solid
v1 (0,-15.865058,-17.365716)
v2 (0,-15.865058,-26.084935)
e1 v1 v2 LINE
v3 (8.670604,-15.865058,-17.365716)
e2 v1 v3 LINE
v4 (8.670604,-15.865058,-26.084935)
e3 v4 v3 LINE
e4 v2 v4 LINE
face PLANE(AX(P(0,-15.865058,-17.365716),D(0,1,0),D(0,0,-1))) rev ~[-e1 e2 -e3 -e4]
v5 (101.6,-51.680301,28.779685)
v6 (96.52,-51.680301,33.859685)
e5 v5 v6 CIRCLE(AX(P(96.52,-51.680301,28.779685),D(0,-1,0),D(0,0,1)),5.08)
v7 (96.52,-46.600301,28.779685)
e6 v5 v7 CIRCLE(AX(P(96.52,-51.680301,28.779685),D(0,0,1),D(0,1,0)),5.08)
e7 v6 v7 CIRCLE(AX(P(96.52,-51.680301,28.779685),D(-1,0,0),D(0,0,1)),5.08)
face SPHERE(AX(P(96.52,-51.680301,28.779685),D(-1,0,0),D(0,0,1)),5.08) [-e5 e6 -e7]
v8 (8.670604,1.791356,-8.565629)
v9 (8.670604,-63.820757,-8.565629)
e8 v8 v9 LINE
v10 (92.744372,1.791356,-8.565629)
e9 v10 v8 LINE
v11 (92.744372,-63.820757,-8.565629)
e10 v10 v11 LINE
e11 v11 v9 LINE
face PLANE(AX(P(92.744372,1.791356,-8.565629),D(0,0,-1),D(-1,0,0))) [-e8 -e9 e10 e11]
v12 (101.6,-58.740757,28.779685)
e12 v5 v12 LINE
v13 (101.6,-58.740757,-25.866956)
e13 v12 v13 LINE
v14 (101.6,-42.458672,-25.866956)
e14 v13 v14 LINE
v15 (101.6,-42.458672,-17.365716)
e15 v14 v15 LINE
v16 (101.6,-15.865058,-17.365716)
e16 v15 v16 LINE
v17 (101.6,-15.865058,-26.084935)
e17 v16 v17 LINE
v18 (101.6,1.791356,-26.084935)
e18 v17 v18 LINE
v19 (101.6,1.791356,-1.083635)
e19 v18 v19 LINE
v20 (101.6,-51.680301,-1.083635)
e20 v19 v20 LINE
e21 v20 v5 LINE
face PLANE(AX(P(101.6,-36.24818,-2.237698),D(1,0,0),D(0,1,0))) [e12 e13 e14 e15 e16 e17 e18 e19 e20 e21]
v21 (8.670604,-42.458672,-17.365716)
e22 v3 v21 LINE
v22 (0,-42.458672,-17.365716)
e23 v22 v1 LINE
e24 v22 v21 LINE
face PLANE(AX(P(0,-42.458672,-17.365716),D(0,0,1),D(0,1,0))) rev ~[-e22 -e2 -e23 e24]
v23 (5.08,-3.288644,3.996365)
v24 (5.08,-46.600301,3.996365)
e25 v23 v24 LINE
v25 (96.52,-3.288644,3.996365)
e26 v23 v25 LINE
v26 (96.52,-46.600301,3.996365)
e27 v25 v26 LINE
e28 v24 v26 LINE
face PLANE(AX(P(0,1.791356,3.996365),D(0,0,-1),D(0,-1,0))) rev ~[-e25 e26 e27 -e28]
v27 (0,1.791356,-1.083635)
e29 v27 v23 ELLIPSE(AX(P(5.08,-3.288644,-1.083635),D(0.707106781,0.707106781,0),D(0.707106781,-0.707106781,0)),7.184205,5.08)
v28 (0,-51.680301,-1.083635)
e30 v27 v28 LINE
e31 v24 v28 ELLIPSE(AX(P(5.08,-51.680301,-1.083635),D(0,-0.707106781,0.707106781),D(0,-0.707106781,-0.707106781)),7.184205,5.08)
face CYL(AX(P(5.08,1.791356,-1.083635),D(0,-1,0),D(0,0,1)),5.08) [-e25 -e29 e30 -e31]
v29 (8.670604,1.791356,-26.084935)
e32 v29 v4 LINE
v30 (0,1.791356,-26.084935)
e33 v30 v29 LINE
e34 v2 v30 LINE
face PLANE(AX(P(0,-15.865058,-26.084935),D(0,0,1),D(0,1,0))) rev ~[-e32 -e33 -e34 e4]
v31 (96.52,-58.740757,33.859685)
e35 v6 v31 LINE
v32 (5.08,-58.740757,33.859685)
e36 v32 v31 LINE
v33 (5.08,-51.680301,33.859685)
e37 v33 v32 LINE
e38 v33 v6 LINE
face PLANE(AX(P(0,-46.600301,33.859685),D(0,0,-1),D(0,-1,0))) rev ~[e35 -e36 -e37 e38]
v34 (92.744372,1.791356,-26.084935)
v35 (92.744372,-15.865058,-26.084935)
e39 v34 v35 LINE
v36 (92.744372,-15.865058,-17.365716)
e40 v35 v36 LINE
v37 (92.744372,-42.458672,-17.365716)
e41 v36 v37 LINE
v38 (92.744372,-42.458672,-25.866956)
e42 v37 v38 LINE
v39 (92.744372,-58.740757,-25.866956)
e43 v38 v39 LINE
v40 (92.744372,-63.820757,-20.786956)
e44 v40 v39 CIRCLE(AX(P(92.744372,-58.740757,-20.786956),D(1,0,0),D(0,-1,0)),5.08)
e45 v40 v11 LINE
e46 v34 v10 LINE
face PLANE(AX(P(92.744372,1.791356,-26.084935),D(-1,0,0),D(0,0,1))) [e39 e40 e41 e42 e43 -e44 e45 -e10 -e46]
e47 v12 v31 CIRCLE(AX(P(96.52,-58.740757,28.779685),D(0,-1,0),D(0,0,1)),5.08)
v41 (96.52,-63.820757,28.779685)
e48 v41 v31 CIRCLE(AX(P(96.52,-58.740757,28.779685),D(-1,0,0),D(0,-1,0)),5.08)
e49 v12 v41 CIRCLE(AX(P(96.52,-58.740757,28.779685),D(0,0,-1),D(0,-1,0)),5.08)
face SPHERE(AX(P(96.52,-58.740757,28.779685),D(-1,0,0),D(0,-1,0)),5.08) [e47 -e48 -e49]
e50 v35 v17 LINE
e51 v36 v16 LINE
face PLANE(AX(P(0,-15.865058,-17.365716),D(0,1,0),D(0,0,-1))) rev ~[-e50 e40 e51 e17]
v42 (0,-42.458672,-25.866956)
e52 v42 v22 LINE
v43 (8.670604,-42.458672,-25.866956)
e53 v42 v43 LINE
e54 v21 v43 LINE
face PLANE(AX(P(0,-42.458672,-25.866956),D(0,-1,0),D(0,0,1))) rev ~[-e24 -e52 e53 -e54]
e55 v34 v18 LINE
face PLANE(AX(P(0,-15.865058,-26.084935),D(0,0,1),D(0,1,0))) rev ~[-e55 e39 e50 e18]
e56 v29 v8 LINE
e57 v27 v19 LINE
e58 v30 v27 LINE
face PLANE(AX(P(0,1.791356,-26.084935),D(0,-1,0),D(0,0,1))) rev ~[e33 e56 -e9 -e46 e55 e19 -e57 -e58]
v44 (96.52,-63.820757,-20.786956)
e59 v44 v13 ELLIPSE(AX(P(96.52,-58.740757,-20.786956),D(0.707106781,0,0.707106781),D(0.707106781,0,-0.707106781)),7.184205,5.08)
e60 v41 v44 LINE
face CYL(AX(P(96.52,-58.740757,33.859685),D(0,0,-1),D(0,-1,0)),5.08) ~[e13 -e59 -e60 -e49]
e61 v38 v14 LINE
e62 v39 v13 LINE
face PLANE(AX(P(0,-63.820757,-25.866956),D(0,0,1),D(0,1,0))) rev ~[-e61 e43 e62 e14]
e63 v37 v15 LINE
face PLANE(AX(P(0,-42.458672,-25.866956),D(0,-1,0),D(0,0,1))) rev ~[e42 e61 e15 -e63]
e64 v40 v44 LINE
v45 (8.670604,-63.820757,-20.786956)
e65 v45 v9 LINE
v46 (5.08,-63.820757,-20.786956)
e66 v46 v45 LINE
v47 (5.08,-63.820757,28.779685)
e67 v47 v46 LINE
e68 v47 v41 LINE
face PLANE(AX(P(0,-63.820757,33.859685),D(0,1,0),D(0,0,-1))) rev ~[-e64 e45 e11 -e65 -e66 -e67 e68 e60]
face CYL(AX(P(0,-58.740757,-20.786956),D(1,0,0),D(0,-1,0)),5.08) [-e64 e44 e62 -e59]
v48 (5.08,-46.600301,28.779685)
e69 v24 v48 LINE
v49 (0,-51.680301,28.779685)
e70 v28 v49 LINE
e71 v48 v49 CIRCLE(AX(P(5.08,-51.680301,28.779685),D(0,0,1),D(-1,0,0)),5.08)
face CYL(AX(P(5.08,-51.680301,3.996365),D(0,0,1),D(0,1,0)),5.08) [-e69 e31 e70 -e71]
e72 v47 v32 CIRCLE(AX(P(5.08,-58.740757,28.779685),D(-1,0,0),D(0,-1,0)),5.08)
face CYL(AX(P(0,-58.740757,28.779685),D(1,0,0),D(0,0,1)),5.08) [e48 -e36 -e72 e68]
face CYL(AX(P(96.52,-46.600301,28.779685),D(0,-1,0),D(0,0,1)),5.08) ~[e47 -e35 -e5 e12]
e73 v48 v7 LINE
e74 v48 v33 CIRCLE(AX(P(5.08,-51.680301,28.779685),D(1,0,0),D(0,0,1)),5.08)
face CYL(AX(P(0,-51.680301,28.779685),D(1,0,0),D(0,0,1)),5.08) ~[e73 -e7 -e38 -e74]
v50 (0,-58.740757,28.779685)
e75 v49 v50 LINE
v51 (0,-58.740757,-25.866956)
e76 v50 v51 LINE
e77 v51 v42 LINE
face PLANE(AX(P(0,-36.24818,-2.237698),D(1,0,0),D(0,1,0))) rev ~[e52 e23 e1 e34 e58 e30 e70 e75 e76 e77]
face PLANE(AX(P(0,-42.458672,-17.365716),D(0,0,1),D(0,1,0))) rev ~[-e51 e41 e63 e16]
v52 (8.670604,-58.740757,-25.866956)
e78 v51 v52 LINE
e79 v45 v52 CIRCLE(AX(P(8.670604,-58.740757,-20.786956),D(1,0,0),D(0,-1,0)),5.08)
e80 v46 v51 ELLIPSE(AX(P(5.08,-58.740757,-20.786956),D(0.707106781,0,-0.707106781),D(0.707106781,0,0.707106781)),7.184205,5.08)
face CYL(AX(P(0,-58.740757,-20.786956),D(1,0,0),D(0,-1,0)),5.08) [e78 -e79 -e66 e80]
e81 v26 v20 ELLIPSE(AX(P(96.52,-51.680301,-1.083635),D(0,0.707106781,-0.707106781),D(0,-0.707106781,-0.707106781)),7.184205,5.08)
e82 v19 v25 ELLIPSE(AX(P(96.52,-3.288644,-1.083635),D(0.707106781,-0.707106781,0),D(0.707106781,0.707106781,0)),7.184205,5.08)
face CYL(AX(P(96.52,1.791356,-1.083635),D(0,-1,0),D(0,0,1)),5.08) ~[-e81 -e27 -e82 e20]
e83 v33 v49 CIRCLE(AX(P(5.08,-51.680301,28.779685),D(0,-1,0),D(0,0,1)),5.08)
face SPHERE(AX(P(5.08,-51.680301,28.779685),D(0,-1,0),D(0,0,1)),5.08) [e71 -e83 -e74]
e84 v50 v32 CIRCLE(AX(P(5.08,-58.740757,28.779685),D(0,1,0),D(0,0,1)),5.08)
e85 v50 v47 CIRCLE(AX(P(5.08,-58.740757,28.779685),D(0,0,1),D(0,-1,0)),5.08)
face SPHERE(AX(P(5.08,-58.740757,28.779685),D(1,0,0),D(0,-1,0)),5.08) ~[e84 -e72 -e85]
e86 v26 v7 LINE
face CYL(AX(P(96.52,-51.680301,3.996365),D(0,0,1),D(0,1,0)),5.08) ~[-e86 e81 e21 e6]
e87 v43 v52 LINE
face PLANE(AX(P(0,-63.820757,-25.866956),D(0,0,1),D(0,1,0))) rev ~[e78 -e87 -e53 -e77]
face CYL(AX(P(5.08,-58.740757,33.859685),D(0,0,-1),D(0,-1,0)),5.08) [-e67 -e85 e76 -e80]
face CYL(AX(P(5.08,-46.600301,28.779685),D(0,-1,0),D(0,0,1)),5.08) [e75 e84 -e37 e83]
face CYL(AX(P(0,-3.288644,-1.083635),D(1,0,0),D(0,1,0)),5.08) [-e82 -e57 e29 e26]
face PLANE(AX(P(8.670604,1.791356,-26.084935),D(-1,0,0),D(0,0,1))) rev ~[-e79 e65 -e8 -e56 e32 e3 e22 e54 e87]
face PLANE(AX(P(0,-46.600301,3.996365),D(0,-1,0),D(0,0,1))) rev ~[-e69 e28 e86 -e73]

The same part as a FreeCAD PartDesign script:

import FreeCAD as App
import Part
import Sketcher


def edges_at(feature, points):
    """Names of the edges that pass closest to the given points."""
    edges = feature.Shape.Edges
    near = lambda p: min(range(len(edges)), key=lambda i: edges[i].distToShape(Part.Vertex(*p))[0])
    return sorted({f"Edge{near(p) + 1}" for p in points})

doc = App.newDocument("Part")
params = doc.addObject("Spreadsheet::Sheet", "Params")
for row, (alias, value) in enumerate([
    ("pad1_length", "4 in"),
    ("fillet_radius", "0.2 in"),
], start=1):
    params.set(f"A{row}", alias)
    params.set(f"B{row}", "=" + value)
    params.setAlias(f"B{row}", alias)

body = doc.addObject("PartDesign::Body", "Body")

# Sketch on YZ plane
sketch1 = body.newObject("Sketcher::SketchObject", "Sketch")
sketch1.AttachmentSupport = (doc.getObject("YZ_Plane"), [""])
sketch1.MapMode = "FlatFace"
sketch1.addGeometry(Part.LineSegment(App.Vector(-47, 34, 0), App.Vector(-64, 34, 0)), False)
sketch1.addGeometry(Part.LineSegment(App.Vector(-64, 34, 0), App.Vector(-64, -26, 0)), False)
sketch1.addGeometry(Part.LineSegment(App.Vector(-64, -26, 0), App.Vector(-42, -26, 0)), False)
sketch1.addGeometry(Part.LineSegment(App.Vector(-42, -26, 0), App.Vector(-42, -17, 0)), False)
sketch1.addGeometry(Part.LineSegment(App.Vector(-42, -17, 0), App.Vector(-16, -17, 0)), False)
sketch1.addGeometry(Part.LineSegment(App.Vector(-16, -17, 0), App.Vector(-16, -26, 0)), False)
sketch1.addGeometry(Part.LineSegment(App.Vector(-16, -26, 0), App.Vector(2, -26, 0)), False)
sketch1.addGeometry(Part.LineSegment(App.Vector(2, -26, 0), App.Vector(2, 4, 0)), False)
sketch1.addGeometry(Part.LineSegment(App.Vector(2, 4, 0), App.Vector(-47, 4, 0)), False)
sketch1.addGeometry(Part.LineSegment(App.Vector(-47, 4, 0), App.Vector(-47, 34, 0)), False)
sketch1.addConstraint(Sketcher.Constraint("Coincident", 0, 2, 1, 1))
sketch1.addConstraint(Sketcher.Constraint("Coincident", 1, 2, 2, 1))
sketch1.addConstraint(Sketcher.Constraint("Coincident", 2, 2, 3, 1))
sketch1.addConstraint(Sketcher.Constraint("Coincident", 3, 2, 4, 1))
sketch1.addConstraint(Sketcher.Constraint("Coincident", 4, 2, 5, 1))
sketch1.addConstraint(Sketcher.Constraint("Coincident", 5, 2, 6, 1))
sketch1.addConstraint(Sketcher.Constraint("Coincident", 6, 2, 7, 1))
sketch1.addConstraint(Sketcher.Constraint("Coincident", 7, 2, 8, 1))
sketch1.addConstraint(Sketcher.Constraint("Coincident", 8, 2, 9, 1))
sketch1.addConstraint(Sketcher.Constraint("Coincident", 9, 2, 0, 1))
sketch1.addConstraint(Sketcher.Constraint("Horizontal", 0))
sketch1.addConstraint(Sketcher.Constraint("Vertical", 1))
sketch1.addConstraint(Sketcher.Constraint("Horizontal", 2))
sketch1.addConstraint(Sketcher.Constraint("Vertical", 3))
sketch1.addConstraint(Sketcher.Constraint("Horizontal", 4))
sketch1.addConstraint(Sketcher.Constraint("Vertical", 5))
sketch1.addConstraint(Sketcher.Constraint("Horizontal", 6))
sketch1.addConstraint(Sketcher.Constraint("Vertical", 7))
sketch1.addConstraint(Sketcher.Constraint("Horizontal", 8))
sketch1.addConstraint(Sketcher.Constraint("Vertical", 9))
sketch1.addConstraint(Sketcher.Constraint("DistanceY", 7, 1, 7, 2, 30.0813))
sketch1.addConstraint(Sketcher.Constraint("DistanceY", 1, 2, 1, 1, 59.726641))
sketch1.addConstraint(Sketcher.Constraint("DistanceY", 3, 1, 3, 2, 8.50124))
sketch1.addConstraint(Sketcher.Constraint("DistanceY", 5, 2, 5, 1, 8.719219))
sketch1.addConstraint(Sketcher.Constraint("DistanceX", 8, 2, -1, 1, 46.600301))
sketch1.addConstraint(Sketcher.Constraint("DistanceX", 1, 2, 4, 2, 47.955699))
sketch1.addConstraint(Sketcher.Constraint("DistanceX", 0, 2, 0, 1, 17.220456))
sketch1.addConstraint(Sketcher.Constraint("DistanceX", 2, 1, 2, 2, 21.362085))
sketch1.addConstraint(Sketcher.Constraint("DistanceX", 6, 1, 6, 2, 17.656414))
sketch1.addConstraint(Sketcher.Constraint("DistanceY", -1, 1, 0, 2, 33.859685))
pad1 = body.newObject("PartDesign::Pad", "Pad")
pad1.Profile = sketch1
pad1.setExpression("Length", "Params.pad1_length")
doc.recompute()

fillet = body.newObject("PartDesign::Fillet", "Fillet")
fillet.Base = (pad1, edges_at(pad1, [
    (50.8, -63.821, 33.86),
    (50.8, -63.821, -25.867),
    (0, -63.821, 3.996),
    (101.6, -63.821, 3.996),
    (50.8, 1.791, 3.996),
    (101.6, -22.404, 3.996),
    (0, -22.404, 3.996),
    (0, -55.211, 33.86),
    (50.8, -46.6, 33.86),
    (101.6, -55.211, 33.86),
    (101.6, -46.6, 18.928),
    (0, -46.6, 18.928),
]))
fillet.setExpression("Radius", "Params.fillet_radius")

# Sketch on XZ plane
sketch2 = body.newObject("Sketcher::SketchObject", "Sketch001")
sketch2.AttachmentSupport = (doc.getObject("XZ_Plane"), [""])
sketch2.MapMode = "FlatFace"
sketch2.AttachmentOffset = App.Placement(App.Vector(0, 0, -1.791356), App.Rotation())
sketch2.addGeometry(Part.LineSegment(App.Vector(93, -9, 0), App.Vector(93, -26, 0)), False)
sketch2.addGeometry(Part.LineSegment(App.Vector(93, -26, 0), App.Vector(9, -26, 0)), False)
sketch2.addGeometry(Part.LineSegment(App.Vector(9, -26, 0), App.Vector(9, -9, 0)), False)
sketch2.addGeometry(Part.LineSegment(App.Vector(9, -9, 0), App.Vector(93, -9, 0)), False)
sketch2.addConstraint(Sketcher.Constraint("Coincident", 0, 2, 1, 1))
sketch2.addConstraint(Sketcher.Constraint("Coincident", 1, 2, 2, 1))
sketch2.addConstraint(Sketcher.Constraint("Coincident", 2, 2, 3, 1))
sketch2.addConstraint(Sketcher.Constraint("Coincident", 3, 2, 0, 1))
sketch2.addConstraint(Sketcher.Constraint("Vertical", 0))
sketch2.addConstraint(Sketcher.Constraint("Horizontal", 1))
sketch2.addConstraint(Sketcher.Constraint("Vertical", 2))
sketch2.addConstraint(Sketcher.Constraint("Horizontal", 3))
sketch2.addConstraint(Sketcher.Constraint("DistanceX", 1, 2, 1, 1, 84.073769))
sketch2.addConstraint(Sketcher.Constraint("DistanceY", 0, 2, 0, 1, 17.519306))
sketch2.addConstraint(Sketcher.Constraint("DistanceY", 2, 2, -1, 1, 8.565629))
sketch2.addConstraint(Sketcher.Constraint("DistanceX", -1, 1, 0, 2, 92.744372))
pocket1 = body.newObject("PartDesign::Pocket", "Pocket")
pocket1.Profile = sketch2
pocket1.Type = "ThroughAll"
pocket1.Reversed = True

doc.recompute()
